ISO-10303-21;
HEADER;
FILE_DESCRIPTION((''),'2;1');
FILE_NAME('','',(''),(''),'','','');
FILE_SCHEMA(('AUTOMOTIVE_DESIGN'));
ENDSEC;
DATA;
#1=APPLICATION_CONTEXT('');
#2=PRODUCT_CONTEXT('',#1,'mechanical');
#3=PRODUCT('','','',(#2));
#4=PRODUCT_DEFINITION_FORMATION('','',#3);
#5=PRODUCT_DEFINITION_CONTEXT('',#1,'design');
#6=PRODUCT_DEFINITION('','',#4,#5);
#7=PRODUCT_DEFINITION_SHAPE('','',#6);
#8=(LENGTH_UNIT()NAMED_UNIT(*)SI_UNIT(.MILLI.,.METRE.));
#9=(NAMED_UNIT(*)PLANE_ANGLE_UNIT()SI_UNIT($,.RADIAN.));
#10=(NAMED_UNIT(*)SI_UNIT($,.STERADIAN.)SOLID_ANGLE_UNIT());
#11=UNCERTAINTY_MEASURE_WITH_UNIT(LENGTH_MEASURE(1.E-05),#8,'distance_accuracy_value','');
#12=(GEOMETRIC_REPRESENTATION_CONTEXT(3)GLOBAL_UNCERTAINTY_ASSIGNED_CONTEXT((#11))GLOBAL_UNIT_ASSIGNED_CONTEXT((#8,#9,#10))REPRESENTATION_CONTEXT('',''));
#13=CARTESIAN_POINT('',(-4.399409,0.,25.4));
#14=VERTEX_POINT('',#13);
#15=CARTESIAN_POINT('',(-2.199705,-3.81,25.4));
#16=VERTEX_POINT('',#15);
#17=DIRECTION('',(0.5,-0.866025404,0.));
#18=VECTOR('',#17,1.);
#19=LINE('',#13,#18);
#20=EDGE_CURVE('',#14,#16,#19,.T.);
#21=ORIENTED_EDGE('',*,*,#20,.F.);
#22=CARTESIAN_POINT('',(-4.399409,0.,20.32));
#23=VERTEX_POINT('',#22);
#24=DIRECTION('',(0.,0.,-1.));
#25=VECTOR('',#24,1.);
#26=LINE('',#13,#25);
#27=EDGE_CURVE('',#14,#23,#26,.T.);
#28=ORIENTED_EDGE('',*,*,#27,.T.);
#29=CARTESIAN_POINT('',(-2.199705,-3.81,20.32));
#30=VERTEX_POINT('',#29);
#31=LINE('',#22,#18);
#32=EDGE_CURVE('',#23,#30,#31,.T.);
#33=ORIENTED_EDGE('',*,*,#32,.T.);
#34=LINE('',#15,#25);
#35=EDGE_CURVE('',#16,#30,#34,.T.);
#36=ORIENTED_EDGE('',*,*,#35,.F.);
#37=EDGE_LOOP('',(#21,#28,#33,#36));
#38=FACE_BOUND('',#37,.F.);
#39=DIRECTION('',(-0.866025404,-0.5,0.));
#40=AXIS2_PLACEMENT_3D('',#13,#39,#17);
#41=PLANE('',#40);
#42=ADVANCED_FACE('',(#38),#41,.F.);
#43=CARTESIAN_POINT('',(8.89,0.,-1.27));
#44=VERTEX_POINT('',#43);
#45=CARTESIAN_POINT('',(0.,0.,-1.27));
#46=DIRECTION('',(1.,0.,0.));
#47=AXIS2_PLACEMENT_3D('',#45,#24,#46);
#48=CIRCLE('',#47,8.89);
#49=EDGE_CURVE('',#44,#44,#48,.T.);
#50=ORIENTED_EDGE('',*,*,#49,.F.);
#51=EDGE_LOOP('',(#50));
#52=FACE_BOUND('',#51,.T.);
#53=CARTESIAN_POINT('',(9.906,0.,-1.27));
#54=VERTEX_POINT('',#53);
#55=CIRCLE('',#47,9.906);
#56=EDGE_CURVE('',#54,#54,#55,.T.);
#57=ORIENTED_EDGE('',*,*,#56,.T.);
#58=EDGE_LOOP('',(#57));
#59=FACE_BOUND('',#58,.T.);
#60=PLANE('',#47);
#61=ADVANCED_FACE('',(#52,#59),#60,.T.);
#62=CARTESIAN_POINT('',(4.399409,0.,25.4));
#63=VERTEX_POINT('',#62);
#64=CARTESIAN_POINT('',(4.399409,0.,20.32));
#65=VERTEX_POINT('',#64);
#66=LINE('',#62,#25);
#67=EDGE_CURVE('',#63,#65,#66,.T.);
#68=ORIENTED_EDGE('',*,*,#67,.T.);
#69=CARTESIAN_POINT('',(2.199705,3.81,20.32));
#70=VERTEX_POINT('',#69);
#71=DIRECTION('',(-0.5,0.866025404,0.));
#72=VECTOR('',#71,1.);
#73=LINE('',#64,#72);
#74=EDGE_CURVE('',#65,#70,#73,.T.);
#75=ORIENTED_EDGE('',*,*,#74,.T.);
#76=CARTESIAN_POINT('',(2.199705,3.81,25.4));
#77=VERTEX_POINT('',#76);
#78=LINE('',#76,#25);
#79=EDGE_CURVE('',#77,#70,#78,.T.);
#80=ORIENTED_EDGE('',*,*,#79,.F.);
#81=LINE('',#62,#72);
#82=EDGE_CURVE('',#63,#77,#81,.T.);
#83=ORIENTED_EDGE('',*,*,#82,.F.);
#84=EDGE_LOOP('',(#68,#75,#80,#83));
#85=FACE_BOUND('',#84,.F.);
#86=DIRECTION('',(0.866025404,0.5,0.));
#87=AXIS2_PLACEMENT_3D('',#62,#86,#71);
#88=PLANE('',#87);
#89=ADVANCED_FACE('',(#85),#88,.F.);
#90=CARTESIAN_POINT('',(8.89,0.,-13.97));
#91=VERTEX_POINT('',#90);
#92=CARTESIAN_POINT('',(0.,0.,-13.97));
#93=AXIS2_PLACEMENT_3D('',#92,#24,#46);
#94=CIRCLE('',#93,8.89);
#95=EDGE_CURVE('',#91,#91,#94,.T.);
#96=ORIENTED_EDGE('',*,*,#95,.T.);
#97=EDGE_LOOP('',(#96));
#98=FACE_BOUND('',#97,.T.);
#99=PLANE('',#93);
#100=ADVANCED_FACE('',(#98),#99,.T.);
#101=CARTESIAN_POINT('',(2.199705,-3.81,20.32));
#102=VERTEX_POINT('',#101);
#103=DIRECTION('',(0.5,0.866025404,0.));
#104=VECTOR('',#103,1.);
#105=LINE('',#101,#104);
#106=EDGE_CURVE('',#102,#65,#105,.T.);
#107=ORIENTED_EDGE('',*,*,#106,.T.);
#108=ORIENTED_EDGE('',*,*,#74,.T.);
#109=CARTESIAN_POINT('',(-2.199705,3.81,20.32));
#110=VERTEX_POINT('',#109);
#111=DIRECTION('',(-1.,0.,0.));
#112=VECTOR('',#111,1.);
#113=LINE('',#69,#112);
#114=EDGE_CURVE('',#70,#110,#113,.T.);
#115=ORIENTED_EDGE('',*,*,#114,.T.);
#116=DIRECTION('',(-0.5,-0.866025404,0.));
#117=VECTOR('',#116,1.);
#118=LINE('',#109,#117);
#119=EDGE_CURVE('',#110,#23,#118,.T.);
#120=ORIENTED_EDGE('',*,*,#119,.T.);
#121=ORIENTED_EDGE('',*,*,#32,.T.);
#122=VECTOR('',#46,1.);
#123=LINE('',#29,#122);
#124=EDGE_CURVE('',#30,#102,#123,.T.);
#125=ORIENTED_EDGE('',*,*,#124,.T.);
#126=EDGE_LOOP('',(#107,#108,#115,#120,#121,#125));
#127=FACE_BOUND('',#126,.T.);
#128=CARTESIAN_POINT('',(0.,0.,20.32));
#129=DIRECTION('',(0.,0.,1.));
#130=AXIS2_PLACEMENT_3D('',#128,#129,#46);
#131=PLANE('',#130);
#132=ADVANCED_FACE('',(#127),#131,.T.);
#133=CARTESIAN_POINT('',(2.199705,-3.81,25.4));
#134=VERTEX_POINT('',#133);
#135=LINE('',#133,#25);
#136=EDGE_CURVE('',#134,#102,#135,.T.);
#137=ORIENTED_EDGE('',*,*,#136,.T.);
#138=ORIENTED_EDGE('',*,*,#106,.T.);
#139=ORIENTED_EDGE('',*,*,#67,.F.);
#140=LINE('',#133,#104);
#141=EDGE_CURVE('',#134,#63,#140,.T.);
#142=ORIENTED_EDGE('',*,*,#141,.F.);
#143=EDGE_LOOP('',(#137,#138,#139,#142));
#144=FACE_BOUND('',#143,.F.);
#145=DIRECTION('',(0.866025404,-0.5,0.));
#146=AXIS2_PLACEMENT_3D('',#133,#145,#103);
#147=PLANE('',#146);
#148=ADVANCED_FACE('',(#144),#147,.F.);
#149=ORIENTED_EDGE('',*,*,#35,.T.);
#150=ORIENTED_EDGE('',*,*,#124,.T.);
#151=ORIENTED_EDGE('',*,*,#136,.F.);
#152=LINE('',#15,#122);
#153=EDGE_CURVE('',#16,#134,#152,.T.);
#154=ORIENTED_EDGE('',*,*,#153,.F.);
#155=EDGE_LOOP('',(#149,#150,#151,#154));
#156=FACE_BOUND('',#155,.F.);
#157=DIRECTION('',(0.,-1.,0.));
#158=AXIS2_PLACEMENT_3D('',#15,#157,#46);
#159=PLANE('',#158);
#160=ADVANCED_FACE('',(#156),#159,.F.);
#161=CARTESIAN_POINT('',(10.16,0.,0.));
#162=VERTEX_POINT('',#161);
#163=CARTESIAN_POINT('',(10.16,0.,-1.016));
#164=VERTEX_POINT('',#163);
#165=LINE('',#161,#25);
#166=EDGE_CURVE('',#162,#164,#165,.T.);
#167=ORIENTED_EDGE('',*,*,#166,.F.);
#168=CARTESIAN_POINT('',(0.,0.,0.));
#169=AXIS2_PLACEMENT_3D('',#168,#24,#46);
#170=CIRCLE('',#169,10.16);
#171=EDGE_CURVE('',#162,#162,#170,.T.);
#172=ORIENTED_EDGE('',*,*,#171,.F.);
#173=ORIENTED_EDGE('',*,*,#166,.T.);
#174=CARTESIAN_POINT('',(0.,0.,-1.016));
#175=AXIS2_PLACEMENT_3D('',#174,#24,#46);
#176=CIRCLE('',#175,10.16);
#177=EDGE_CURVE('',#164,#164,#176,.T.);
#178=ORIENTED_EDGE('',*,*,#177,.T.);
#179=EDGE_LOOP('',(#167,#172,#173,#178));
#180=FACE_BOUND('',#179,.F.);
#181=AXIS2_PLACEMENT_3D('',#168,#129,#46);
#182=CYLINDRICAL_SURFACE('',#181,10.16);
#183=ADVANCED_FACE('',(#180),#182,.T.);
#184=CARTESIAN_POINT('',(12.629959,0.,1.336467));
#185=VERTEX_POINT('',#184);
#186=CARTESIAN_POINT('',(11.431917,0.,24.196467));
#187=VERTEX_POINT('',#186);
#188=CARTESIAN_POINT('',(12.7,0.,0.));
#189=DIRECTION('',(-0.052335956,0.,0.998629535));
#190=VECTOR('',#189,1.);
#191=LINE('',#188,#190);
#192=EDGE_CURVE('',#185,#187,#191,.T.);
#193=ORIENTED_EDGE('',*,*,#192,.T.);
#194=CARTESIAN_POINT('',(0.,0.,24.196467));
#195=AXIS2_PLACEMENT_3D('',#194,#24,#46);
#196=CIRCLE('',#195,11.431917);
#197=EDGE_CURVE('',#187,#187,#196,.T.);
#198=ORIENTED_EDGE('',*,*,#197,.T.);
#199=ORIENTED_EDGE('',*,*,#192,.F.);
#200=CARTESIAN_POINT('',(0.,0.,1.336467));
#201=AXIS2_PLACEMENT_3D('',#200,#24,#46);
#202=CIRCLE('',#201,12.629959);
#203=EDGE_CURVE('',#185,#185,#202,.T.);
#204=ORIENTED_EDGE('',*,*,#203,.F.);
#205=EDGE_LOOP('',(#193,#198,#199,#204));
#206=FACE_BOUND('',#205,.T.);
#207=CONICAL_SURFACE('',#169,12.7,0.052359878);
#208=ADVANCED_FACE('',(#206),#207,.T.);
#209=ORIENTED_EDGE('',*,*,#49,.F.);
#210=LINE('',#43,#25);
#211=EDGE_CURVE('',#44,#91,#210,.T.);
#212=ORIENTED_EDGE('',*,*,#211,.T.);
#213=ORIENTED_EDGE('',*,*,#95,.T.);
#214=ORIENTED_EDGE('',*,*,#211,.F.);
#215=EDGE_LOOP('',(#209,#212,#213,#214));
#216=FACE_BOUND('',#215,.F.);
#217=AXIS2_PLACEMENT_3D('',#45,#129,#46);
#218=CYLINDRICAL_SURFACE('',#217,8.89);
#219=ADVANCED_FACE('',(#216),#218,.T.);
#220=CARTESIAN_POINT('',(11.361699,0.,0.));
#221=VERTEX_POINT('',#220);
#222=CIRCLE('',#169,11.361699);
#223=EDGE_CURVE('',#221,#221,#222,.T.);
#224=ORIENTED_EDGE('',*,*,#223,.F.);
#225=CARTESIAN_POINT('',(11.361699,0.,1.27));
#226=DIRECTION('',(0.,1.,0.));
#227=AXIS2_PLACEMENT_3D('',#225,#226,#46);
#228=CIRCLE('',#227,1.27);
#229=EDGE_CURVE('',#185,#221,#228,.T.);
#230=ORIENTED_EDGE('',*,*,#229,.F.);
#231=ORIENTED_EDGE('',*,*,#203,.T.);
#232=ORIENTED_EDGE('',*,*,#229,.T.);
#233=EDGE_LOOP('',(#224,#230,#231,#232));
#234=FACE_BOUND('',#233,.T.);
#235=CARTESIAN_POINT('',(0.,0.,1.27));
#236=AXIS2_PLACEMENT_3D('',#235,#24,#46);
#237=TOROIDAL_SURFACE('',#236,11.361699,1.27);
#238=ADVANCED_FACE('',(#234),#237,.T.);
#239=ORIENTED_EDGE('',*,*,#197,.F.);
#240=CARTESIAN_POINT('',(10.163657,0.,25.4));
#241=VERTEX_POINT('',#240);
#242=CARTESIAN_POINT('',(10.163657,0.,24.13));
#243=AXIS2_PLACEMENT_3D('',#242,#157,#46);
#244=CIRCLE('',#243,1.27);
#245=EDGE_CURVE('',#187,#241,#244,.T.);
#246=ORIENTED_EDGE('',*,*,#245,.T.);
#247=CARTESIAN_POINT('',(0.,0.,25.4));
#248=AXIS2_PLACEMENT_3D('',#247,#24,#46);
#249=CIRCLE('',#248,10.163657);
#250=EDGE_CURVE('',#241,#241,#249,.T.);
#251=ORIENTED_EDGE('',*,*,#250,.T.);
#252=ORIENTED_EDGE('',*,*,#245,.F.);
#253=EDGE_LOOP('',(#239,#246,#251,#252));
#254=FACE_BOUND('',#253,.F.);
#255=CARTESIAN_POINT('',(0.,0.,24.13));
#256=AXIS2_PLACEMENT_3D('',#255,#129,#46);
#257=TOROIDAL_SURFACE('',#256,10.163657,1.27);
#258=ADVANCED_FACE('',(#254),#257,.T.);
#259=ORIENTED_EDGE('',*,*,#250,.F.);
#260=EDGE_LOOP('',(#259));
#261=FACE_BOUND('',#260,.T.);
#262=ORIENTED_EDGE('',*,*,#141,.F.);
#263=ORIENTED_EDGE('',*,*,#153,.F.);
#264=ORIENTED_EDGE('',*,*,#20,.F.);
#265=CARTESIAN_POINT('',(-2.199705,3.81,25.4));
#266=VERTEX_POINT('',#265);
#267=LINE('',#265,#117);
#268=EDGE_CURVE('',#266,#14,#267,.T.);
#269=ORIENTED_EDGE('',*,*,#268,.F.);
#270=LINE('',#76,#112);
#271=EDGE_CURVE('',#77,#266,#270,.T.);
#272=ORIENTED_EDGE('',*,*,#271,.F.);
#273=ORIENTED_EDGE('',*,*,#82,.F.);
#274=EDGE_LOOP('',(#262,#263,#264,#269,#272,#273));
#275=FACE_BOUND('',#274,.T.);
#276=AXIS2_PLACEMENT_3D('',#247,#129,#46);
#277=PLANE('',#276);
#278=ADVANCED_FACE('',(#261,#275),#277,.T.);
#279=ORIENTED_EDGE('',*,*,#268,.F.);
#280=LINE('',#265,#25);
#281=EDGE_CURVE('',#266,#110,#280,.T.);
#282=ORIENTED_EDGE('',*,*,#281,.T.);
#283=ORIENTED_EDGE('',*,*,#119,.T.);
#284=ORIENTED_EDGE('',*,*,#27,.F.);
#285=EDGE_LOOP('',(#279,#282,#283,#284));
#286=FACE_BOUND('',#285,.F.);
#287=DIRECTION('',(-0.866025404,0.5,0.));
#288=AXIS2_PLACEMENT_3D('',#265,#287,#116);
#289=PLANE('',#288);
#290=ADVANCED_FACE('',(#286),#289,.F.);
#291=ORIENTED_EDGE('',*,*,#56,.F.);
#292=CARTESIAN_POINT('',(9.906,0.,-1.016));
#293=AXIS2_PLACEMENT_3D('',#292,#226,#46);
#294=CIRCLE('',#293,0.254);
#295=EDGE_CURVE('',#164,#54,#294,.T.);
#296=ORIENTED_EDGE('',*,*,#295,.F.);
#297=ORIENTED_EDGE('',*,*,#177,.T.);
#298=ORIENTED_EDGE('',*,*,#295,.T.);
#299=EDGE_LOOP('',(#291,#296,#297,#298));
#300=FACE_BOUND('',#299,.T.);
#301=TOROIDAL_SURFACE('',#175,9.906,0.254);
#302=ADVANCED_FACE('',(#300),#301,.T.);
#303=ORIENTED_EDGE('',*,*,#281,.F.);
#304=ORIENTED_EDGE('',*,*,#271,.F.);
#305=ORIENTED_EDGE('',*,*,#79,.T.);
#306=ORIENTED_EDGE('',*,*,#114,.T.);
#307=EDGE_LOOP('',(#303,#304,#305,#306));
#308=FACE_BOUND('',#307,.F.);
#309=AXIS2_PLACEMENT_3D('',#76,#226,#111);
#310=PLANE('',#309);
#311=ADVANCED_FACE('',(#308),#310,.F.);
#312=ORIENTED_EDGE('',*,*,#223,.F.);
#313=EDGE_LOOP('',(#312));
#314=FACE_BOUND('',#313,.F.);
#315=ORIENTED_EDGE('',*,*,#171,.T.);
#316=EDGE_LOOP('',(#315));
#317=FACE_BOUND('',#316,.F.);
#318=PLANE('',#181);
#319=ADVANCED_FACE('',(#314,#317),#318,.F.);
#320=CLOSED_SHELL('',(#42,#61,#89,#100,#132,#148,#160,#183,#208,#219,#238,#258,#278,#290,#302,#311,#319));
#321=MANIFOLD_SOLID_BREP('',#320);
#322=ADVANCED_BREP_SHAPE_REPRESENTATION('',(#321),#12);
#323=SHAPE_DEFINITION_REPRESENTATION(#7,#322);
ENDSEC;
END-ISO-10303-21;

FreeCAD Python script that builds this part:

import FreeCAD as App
import Part
import Sketcher
from FreeCAD import Vector
Q = App.Units.Quantity


def edges_at(feature, points):
    """Names of the edges that pass closest to the given points."""
    edges = feature.Shape.Edges
    near = lambda p: min(range(len(edges)), key=lambda i: edges[i].distToShape(Part.Vertex(*p))[0])
    return sorted({f"Edge{near(p) + 1}" for p in points})

doc = App.newDocument("Part")
params = doc.addObject("Spreadsheet::Sheet", "Params")
for row, (alias, value) in enumerate([
    ("sketch1_diameter", "1 in"),
    ("pad1_length", "1 in"),
    ("pad1_taper", "-3 deg"),
    ("pocket1_length", "0.2 in"),
    ("fillet_radius", "0.05 in"),
    ("fillet2_radius", "0.05 in"),
    ("sketch3_diameter", "0.8 in"),
    ("pad2_length", "0.05 in"),
    ("fillet3_radius", "0.01 in"),
    ("sketch4_diameter", "0.7 in"),
    ("pad3_length", "0.5 in"),
], start=1):
    params.set(f"A{row}", alias)
    params.set(f"B{row}", "=" + value)
    params.setAlias(f"B{row}", alias)

body = doc.addObject("PartDesign::Body", "Body")

sketch1 = doc.addObject("Sketcher::SketchObject", "Sketch")
body.addObject(sketch1)
sketch1.AttachmentSupport = (doc.XY_Plane, [""])
sketch1.MapMode = "FlatFace"
sketch1.addGeometry(Part.Circle(Vector(0, 0, 0), Vector(0, 0, 1), 13), False)
sketch1.addConstraint([
    Sketcher.Constraint("Coincident", 0, 3, -1, 1),
    Sketcher.Constraint("Diameter", 0, Q("1 in")),
])
sketch1.setExpression("Constraints[1]", "Params.sketch1_diameter")
pad1 = doc.addObject("PartDesign::Pad", "Pad")
body.addObject(pad1)
pad1.Profile = sketch1
pad1.setExpression("Length", "Params.pad1_length")
pad1.setExpression("TaperAngle", "Params.pad1_taper")

sketch2 = doc.addObject("Sketcher::SketchObject", "Sketch001")
body.addObject(sketch2)
sketch2.AttachmentSupport = (doc.XY_Plane, [""])
sketch2.MapMode = "FlatFace"
sketch2.AttachmentOffset = App.Placement(Vector(0, 0, 1 * 25.4), App.Rotation())
sketch2.addGeometry([
    Part.LineSegment(Vector(2.2, 3.8, 0), Vector(-2.2, 3.8, 0)),
    Part.LineSegment(Vector(-2.2, 3.8, 0), Vector(-4.4, 0, 0)),
    Part.LineSegment(Vector(-4.4, 0, 0), Vector(-2.2, -3.8, 0)),
    Part.LineSegment(Vector(-2.2, -3.8, 0), Vector(2.2, -3.8, 0)),
    Part.LineSegment(Vector(2.2, -3.8, 0), Vector(4.4, 0, 0)),
    Part.LineSegment(Vector(4.4, 0, 0), Vector(2.2, 3.8, 0)),
], False)
sketch2.addConstraint([
    Sketcher.Constraint("Coincident", 0, 2, 1, 1),
    Sketcher.Constraint("Coincident", 1, 2, 2, 1),
    Sketcher.Constraint("Coincident", 2, 2, 3, 1),
    Sketcher.Constraint("Coincident", 3, 2, 4, 1),
    Sketcher.Constraint("Coincident", 4, 2, 5, 1),
    Sketcher.Constraint("Coincident", 5, 2, 0, 1),
    Sketcher.Constraint("Horizontal", 0),
    Sketcher.Constraint("Horizontal", 3),
    Sketcher.Constraint("Symmetric", 0, 2, 3, 2, -1, 1),
    Sketcher.Constraint("Symmetric", 1, 2, 4, 2, -1, 1),
    Sketcher.Constraint("PointOnObject", 1, 2, -1),
    Sketcher.Constraint("Parallel", 2, 5),
    Sketcher.Constraint("Vertical", 0, 2, 2, 2),
    Sketcher.Constraint("Angle", 1, Q("-120 deg")),
    Sketcher.Constraint("DistanceY", 2, 2, 0, 2, Q("0.3 in")),
    Sketcher.Constraint("DistanceX", 0, 2, 0, 1, 4.399409),
])
pocket1 = doc.addObject("PartDesign::Pocket", "Pocket")
body.addObject(pocket1)
pocket1.Profile = sketch2
pocket1.setExpression("Length", "Params.pocket1_length")
doc.recompute()

fillet = doc.addObject("PartDesign::Fillet", "Fillet")
body.addObject(fillet)
fillet.Base = (pocket1, edges_at(pocket1, [(-11.369, 0, 25.4)]))
fillet.setExpression("Radius", "Params.fillet_radius")
doc.recompute()

fillet2 = doc.addObject("PartDesign::Fillet", "Fillet001")
body.addObject(fillet2)
fillet2.Base = (fillet, edges_at(fillet, [(-12.7, 0, 0)]))
fillet2.setExpression("Radius", "Params.fillet2_radius")

sketch3 = doc.addObject("Sketcher::SketchObject", "Sketch002")
body.addObject(sketch3)
sketch3.AttachmentSupport = (doc.XY_Plane, [""])
sketch3.MapMode = "FlatFace"
sketch3.addGeometry(Part.Circle(Vector(0, 0, 0), Vector(0, 0, 1), 10), False)
sketch3.addConstraint([
    Sketcher.Constraint("Coincident", 0, 3, -1, 1),
    Sketcher.Constraint("Diameter", 0, Q("0.8 in")),
])
sketch3.setExpression("Constraints[1]", "Params.sketch3_diameter")
pad2 = doc.addObject("PartDesign::Pad", "Pad001")
body.addObject(pad2)
pad2.Profile = sketch3
pad2.setExpression("Length", "Params.pad2_length")
pad2.Reversed = True
doc.recompute()

fillet3 = doc.addObject("PartDesign::Fillet", "Fillet002")
body.addObject(fillet3)
fillet3.Base = (pad2, edges_at(pad2, [(-10.16, 0, -1.27)]))
fillet3.setExpression("Radius", "Params.fillet3_radius")

sketch4 = doc.addObject("Sketcher::SketchObject", "Sketch003")
body.addObject(sketch4)
sketch4.AttachmentSupport = (doc.XY_Plane, [""])
sketch4.MapMode = "FlatFace"
sketch4.AttachmentOffset = App.Placement(Vector(0, 0, -0.05 * 25.4), App.Rotation())
sketch4.addGeometry(Part.Circle(Vector(0, 0, 0), Vector(0, 0, 1), 9), False)
sketch4.addConstraint([
    Sketcher.Constraint("Coincident", 0, 3, -1, 1),
    Sketcher.Constraint("Diameter", 0, Q("0.7 in")),
])
sketch4.setExpression("Constraints[1]", "Params.sketch4_diameter")
pad3 = doc.addObject("PartDesign::Pad", "Pad002")
body.addObject(pad3)
pad3.Profile = sketch4
pad3.setExpression("Length", "Params.pad3_length")
pad3.Reversed = True

doc.recompute()
